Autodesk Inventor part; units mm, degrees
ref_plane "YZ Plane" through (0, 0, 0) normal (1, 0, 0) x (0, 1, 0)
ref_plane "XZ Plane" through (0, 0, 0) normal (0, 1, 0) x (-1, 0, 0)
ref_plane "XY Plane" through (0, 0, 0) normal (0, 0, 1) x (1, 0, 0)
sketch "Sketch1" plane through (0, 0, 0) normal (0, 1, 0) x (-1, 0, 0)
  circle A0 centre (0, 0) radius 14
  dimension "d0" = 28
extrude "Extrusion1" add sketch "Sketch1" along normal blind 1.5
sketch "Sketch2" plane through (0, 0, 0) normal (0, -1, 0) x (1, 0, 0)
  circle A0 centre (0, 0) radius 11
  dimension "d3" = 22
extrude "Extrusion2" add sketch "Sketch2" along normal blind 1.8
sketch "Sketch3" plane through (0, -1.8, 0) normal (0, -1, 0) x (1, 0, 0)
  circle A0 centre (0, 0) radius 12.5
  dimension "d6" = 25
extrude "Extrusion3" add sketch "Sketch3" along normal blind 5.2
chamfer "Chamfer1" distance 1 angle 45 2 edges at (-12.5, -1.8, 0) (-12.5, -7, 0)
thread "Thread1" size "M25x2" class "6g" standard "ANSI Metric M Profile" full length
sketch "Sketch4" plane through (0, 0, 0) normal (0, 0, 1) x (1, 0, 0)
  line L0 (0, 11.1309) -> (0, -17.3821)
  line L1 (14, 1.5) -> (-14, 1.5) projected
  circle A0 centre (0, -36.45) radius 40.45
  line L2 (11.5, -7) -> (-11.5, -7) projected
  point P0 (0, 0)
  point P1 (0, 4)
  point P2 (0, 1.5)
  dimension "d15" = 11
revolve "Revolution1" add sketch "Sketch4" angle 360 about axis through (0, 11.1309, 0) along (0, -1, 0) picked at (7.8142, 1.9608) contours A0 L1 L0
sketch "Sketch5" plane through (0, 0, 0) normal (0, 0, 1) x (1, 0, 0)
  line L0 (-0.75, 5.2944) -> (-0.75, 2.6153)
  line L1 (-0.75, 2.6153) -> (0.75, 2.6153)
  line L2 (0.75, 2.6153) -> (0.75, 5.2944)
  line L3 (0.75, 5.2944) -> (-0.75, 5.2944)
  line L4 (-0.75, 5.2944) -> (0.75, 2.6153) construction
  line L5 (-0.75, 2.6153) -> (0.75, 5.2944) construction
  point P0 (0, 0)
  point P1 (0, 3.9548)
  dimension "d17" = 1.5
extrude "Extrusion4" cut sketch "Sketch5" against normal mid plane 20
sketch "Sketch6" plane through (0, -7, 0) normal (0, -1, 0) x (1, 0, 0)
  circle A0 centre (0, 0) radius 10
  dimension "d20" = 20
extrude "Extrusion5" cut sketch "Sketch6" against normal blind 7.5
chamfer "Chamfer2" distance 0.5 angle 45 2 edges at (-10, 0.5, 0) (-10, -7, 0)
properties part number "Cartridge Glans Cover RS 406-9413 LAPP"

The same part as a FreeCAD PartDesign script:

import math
import FreeCAD as App
import Part
import Sketcher


def edges_at(feature, points):
    """Names of the edges that pass closest to the given points."""
    edges = feature.Shape.Edges
    near = lambda p: min(range(len(edges)), key=lambda i: edges[i].distToShape(Part.Vertex(*p))[0])
    return sorted({f"Edge{near(p) + 1}" for p in points})


def add_polygon(sketch, points):
    """Adds a closed chain of lines whose ends are joined by coincident constraints."""
    first, n = sketch.GeometryCount, len(points)
    for a, b in zip(points, points[1:] + points[:1]):
        sketch.addGeometry(Part.LineSegment(App.Vector(*a, 0), App.Vector(*b, 0)), False)
    for i in range(n):
        sketch.addConstraint(Sketcher.Constraint("Coincident", first + i, 2, first + (i + 1) % n, 1))

doc = App.newDocument("Part")
body = doc.addObject("PartDesign::Body", "Body")

sketch1 = body.newObject("Sketcher::SketchObject", "Sketch")
sketch1.AttachmentSupport = (doc.getObject("XZ_Plane"), [""])
sketch1.MapMode = "FlatFace"
sketch1.addGeometry(Part.Circle(App.Vector(0, 0, 0), App.Vector(0, 0, 1), 14), False)
sketch1.addConstraint([
    Sketcher.Constraint("Coincident", 0, 3, -1, 1),
    Sketcher.Constraint("Diameter", 0, 28.0),
])
pad1 = body.newObject("PartDesign::Pad", "Pad")
pad1.Profile = sketch1
pad1.Length = 1.5
pad1.Reversed = True

sketch2 = body.newObject("Sketcher::SketchObject", "Sketch001")
sketch2.AttachmentSupport = (doc.getObject("XZ_Plane"), [""])
sketch2.MapMode = "FlatFace"
sketch2.addGeometry(Part.Circle(App.Vector(0, 0, 0), App.Vector(0, 0, 1), 11), False)
sketch2.addConstraint([
    Sketcher.Constraint("Coincident", 0, 3, -1, 1),
    Sketcher.Constraint("Diameter", 0, 22.0),
])
pad2 = body.newObject("PartDesign::Pad", "Pad001")
pad2.Profile = sketch2
pad2.Length = 1.8

sketch3 = body.newObject("Sketcher::SketchObject", "Sketch002")
sketch3.AttachmentSupport = (doc.getObject("XZ_Plane"), [""])
sketch3.MapMode = "FlatFace"
sketch3.AttachmentOffset = App.Placement(App.Vector(0, 0, 1.8), App.Rotation())
sketch3.addGeometry(Part.Circle(App.Vector(0, 0, 0), App.Vector(0, 0, 1), 12), False)
sketch3.addConstraint([
    Sketcher.Constraint("Coincident", 0, 3, -1, 1),
    Sketcher.Constraint("Diameter", 0, 25.0),
])
pad3 = body.newObject("PartDesign::Pad", "Pad002")
pad3.Profile = sketch3
pad3.Length = 5.2
doc.recompute()

chamfer = body.newObject("PartDesign::Chamfer", "Chamfer")
chamfer.Base = (pad3, edges_at(pad3, [(-12.5, -1.8, 0), (-12.5, -7, 0)]))
chamfer.Size = 1

sketch4 = body.newObject("Sketcher::SketchObject", "Sketch003")
sketch4.AttachmentSupport = (doc.getObject("XY_Plane"), [""])
sketch4.MapMode = "FlatFace"
sketch4.addGeometry([
    Part.ArcOfCircle(Part.Circle(App.Vector(0, -36.5, 0), App.Vector(0, 0, 1), 40.5), math.radians(70), math.radians(90)),
    Part.LineSegment(App.Vector(0, 4, 0), App.Vector(0, 1.5, 0)),
    Part.LineSegment(App.Vector(0, 1.5, 0), App.Vector(14, 1.5, 0)),
], False)
sketch4.addConstraint([
    Sketcher.Constraint("Coincident", 0, 2, 1, 1),
    Sketcher.Constraint("Coincident", 1, 2, 2, 1),
    Sketcher.Constraint("Coincident", 2, 2, 0, 1),
    Sketcher.Constraint("Vertical", 1),
    Sketcher.Constraint("Horizontal", 2),
    Sketcher.Constraint("PointOnObject", 0, 3, -2),
    Sketcher.Constraint("PointOnObject", 0, 2, -2),
    Sketcher.Constraint("DistanceX", 2, 1, 2, 2, 14.0),
    Sketcher.Constraint("Radius", 0, 40.45),
    Sketcher.Constraint("DistanceY", -1, 1, 0, 2, 4.0),
])
revolution = body.newObject("PartDesign::Revolution", "Revolution")
revolution.Profile = sketch4
revolution.ReferenceAxis = (sketch4, ["V_Axis"])
revolution.Angle = 360

sketch5 = body.newObject("Sketcher::SketchObject", "Sketch004")
sketch5.AttachmentSupport = (doc.getObject("XY_Plane"), [""])
sketch5.MapMode = "FlatFace"
add_polygon(sketch5, [(0.8, 5.3), (-0.8, 5.3), (-0.8, 2.6), (0.8, 2.6)])
sketch5.addConstraint([
    Sketcher.Constraint("Horizontal", 0),
    Sketcher.Constraint("Vertical", 1),
    Sketcher.Constraint("Horizontal", 2),
    Sketcher.Constraint("Vertical", 3),
    Sketcher.Constraint("DistanceX", 0, 2, 0, 1, 1.5),
    Sketcher.Constraint("DistanceY", 1, 2, 1, 1, 2.679),
    Sketcher.Constraint("DistanceX", 0, 2, -1, 1, 0.75),
    Sketcher.Constraint("DistanceY", -1, 1, 0, 2, 5.2944),
])
pocket1 = body.newObject("PartDesign::Pocket", "Pocket")
pocket1.Profile = sketch5
pocket1.Length = 20
pocket1.Midplane = True

sketch6 = body.newObject("Sketcher::SketchObject", "Sketch005")
sketch6.AttachmentSupport = (doc.getObject("XZ_Plane"), [""])
sketch6.MapMode = "FlatFace"
sketch6.AttachmentOffset = App.Placement(App.Vector(0, 0, 7), App.Rotation())
sketch6.addGeometry(Part.Circle(App.Vector(0, 0, 0), App.Vector(0, 0, 1), 10), False)
sketch6.addConstraint([
    Sketcher.Constraint("Coincident", 0, 3, -1, 1),
    Sketcher.Constraint("Diameter", 0, 20.0),
])
pocket2 = body.newObject("PartDesign::Pocket", "Pocket001")
pocket2.Profile = sketch6
pocket2.Length = 7.5
doc.recompute()

chamfer2 = body.newObject("PartDesign::Chamfer", "Chamfer001")
chamfer2.Base = (pocket2, edges_at(pocket2, [(-10, 0.5, 0), (-10, -7, 0)]))
chamfer2.Size = 0.5

doc.recompute()
